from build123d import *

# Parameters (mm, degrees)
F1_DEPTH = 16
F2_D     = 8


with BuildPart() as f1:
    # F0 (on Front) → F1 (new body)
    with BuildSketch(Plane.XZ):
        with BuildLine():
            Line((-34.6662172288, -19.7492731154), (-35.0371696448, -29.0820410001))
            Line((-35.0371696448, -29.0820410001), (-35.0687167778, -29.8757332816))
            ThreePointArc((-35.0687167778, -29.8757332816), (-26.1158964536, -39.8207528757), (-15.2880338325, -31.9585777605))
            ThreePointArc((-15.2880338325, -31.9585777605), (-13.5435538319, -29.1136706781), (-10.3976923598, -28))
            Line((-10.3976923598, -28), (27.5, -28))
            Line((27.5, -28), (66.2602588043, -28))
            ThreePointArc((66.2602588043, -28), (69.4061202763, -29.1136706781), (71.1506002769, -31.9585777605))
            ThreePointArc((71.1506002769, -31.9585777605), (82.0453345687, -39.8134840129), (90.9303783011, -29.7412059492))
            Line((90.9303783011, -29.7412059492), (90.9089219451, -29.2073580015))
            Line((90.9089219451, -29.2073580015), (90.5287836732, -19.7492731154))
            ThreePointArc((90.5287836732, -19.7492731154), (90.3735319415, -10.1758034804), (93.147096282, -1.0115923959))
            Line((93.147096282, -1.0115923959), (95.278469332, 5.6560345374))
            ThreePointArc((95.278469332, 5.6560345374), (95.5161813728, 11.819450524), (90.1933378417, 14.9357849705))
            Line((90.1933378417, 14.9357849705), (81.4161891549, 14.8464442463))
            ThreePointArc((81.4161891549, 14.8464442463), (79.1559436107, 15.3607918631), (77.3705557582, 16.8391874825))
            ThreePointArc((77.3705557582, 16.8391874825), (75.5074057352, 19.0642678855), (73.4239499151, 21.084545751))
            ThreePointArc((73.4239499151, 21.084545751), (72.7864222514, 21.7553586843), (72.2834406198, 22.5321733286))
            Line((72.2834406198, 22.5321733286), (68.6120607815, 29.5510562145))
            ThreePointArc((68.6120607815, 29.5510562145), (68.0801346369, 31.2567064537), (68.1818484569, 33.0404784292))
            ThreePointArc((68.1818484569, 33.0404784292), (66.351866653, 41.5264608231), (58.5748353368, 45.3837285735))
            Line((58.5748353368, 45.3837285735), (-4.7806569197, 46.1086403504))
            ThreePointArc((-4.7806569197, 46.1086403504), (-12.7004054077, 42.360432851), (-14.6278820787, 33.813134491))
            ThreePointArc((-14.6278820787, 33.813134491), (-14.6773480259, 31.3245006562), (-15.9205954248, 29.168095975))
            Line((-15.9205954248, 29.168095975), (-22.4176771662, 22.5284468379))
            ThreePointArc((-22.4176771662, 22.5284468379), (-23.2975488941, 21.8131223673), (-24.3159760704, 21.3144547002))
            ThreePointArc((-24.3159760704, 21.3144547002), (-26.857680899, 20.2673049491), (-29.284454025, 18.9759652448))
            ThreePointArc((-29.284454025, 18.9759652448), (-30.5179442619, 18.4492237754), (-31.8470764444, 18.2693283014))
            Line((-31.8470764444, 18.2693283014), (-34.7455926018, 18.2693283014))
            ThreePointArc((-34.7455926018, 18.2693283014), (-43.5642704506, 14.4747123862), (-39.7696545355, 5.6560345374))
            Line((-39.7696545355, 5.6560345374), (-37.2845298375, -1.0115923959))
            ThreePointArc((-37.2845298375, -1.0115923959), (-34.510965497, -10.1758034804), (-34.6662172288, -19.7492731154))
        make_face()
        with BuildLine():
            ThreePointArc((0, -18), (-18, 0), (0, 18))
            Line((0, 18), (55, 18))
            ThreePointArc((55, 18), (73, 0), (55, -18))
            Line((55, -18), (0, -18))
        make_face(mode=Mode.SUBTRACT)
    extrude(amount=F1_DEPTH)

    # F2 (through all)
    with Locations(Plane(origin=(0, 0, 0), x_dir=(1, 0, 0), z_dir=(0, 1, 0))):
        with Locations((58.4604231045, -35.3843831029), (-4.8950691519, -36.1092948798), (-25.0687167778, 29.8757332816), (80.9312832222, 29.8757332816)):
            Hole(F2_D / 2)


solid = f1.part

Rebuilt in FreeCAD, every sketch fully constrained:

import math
import FreeCAD as App
import Part
import Sketcher

V = App.Vector

doc = App.newDocument("Part")
body = doc.addObject("PartDesign::Body", "Body")

# Sketch on XZ plane
sketch1 = body.newObject("Sketcher::SketchObject", "Sketch")
sketch1.AttachmentSupport = (doc.getObject("XZ_Plane"), [""])
sketch1.MapMode = "FlatFace"
sketch1.addGeometry([
    Part.LineSegment(V(-34.7, -19.7, 0), V(-35, -29.1, 0)),  # 0
    Part.LineSegment(V(-35, -29.1, 0), V(-35.1, -29.9, 0)),  # 1
    Part.ArcOfCircle(Part.Circle(V(-25.1, -29.9, 0), V(0, 0, 1), 10), math.radians(180), math.radians(348)),  # 2
    Part.ArcOfCircle(Part.Circle(V(-10.4, -33, 0), V(0, 0, 1), 5), math.radians(90), math.radians(168)),  # 3
    Part.LineSegment(V(-10.4, -28, 0), V(66.3, -28, 0)),  # 4
    Part.ArcOfCircle(Part.Circle(V(66.3, -33, 0), V(0, 0, 1), 5), math.radians(12), math.radians(90)),  # 5
    Part.ArcOfCircle(Part.Circle(V(80.9, -29.9, 0), V(0, 0, 1), 10), math.radians(-168), math.radians(1)),  # 6
    Part.LineSegment(V(90.9, -29.7, 0), V(90.9, -29.2, 0)),  # 7
    Part.LineSegment(V(90.9, -29.2, 0), V(90.5, -19.7, 0)),  # 8
    Part.ArcOfCircle(Part.Circle(V(121.1, -14.5, 0), V(0, 0, 1), 31), math.radians(154), math.radians(190)),  # 9
    Part.LineSegment(V(93.1, -1, 0), V(95.3, 5.7, 0)),  # 10
    Part.ArcOfCircle(Part.Circle(V(90.3, 8.9, 0), V(0, 0, 1), 6), math.radians(-33), math.radians(91)),  # 11
    Part.LineSegment(V(90.2, 14.9, 0), V(81.4, 14.8, 0)),  # 12
    Part.ArcOfCircle(Part.Circle(V(81.4, 19.8, 0), V(0, 0, 1), 5), math.radians(-143), math.radians(-89)),  # 13
    Part.ArcOfCircle(Part.Circle(V(55, 0, 0), V(0, 0, 1), 28), math.radians(36.97), math.radians(48.85)),  # 14
    Part.ArcOfCircle(Part.Circle(V(76.7, 24.8, 0), V(0, 0, 1), 5), math.radians(-152), math.radians(-131)),  # 15
    Part.LineSegment(V(72.3, 22.5, 0), V(68.6, 29.6, 0)),  # 16
    Part.ArcOfCircle(Part.Circle(V(73, 31.9, 0), V(0, 0, 1), 5), math.radians(166), math.radians(208)),  # 17
    Part.ArcOfCircle(Part.Circle(V(58.5, 35.4, 0), V(0, 0, 1), 10), math.radians(-14), math.radians(89)),  # 18
    Part.LineSegment(V(58.6, 45.4, 0), V(-4.8, 46.1, 0)),  # 19
    Part.ArcOfCircle(Part.Circle(V(-4.9, 36.1, 0), V(0, 0, 1), 10), math.radians(89), math.radians(193)),  # 20
    Part.ArcOfCircle(Part.Circle(V(-19.5, 32.7, 0), V(0, 0, 1), 5), math.radians(-44), math.radians(13)),  # 21
    Part.LineSegment(V(-15.9, 29.2, 0), V(-22.4, 22.5, 0)),  # 22
    Part.ArcOfCircle(Part.Circle(V(-26, 26, 0), V(0, 0, 1), 5), math.radians(-70), math.radians(-44)),  # 23
    Part.ArcOfCircle(Part.Circle(V(-14.9, -5.1, 0), V(0, 0, 1), 28), math.radians(109.58), math.radians(120.83)),  # 24
    Part.ArcOfCircle(Part.Circle(V(-31.8, 23.3, 0), V(0, 0, 1), 5), math.radians(-90), math.radians(-59)),  # 25
    Part.LineSegment(V(-31.8, 18.3, 0), V(-34.7, 18.3, 0)),  # 26
    Part.ArcOfCircle(Part.Circle(V(-37.3, 12, 0), V(0, 0, 1), 6.8), math.radians(68), math.radians(248)),  # 27
    Part.LineSegment(V(-39.8, 5.7, 0), V(-37.3, -1, 0)),  # 28
    Part.ArcOfCircle(Part.Circle(V(-65.2, -14.5, 0), V(0, 0, 1), 31), math.radians(-10), math.radians(26)),  # 29
    Part.LineSegment(V(55, -18, 0), V(0, -18, 0)),  # 30
    Part.ArcOfCircle(Part.Circle(V(0, 0, 0), V(0, 0, 1), 18), math.radians(90), math.radians(270)),  # 31
    Part.LineSegment(V(0, 18, 0), V(55, 18, 0)),  # 32
    Part.ArcOfCircle(Part.Circle(V(55, 0, 0), V(0, 0, 1), 18), math.radians(-90), math.radians(90)),  # 33
], False)
sketch1.addConstraint([
    Sketcher.Constraint("Coincident", 0, 2, 1, 1),
    Sketcher.Constraint("Coincident", 1, 2, 2, 1),
    Sketcher.Constraint("Tangent", 2, 2, 3, 2),
    Sketcher.Constraint("Tangent", 3, 1, 4, 1),
    Sketcher.Constraint("Tangent", 4, 2, 5, 2),
    Sketcher.Constraint("Tangent", 5, 1, 6, 1),
    Sketcher.Constraint("Coincident", 6, 2, 7, 1),
    Sketcher.Constraint("Coincident", 7, 2, 8, 1),
    Sketcher.Constraint("Coincident", 8, 2, 9, 2),
    Sketcher.Constraint("Coincident", 9, 1, 10, 1),
    Sketcher.Constraint("Coincident", 10, 2, 11, 1),
    Sketcher.Constraint("Tangent", 11, 2, 12, 1),
    Sketcher.Constraint("Tangent", 12, 2, 13, 2),
    Sketcher.Constraint("Tangent", 13, 1, 14, 1),
    Sketcher.Constraint("Tangent", 14, 2, 15, 2),
    Sketcher.Constraint("Tangent", 15, 1, 16, 1),
    Sketcher.Constraint("Tangent", 16, 2, 17, 2),
    Sketcher.Constraint("Tangent", 17, 1, 18, 1),
    Sketcher.Constraint("Tangent", 18, 2, 19, 1),
    Sketcher.Constraint("Tangent", 19, 2, 20, 1),
    Sketcher.Constraint("Tangent", 20, 2, 21, 2),
    Sketcher.Constraint("Tangent", 21, 1, 22, 1),
    Sketcher.Constraint("Tangent", 22, 2, 23, 2),
    Sketcher.Constraint("Tangent", 23, 1, 24, 1),
    Sketcher.Constraint("Tangent", 24, 2, 25, 2),
    Sketcher.Constraint("Tangent", 25, 1, 26, 1),
    Sketcher.Constraint("Coincident", 26, 2, 27, 1),
    Sketcher.Constraint("Coincident", 27, 2, 28, 1),
    Sketcher.Constraint("Coincident", 28, 2, 29, 2),
    Sketcher.Constraint("Coincident", 29, 1, 0, 1),
    Sketcher.Constraint("Tangent", 30, 2, 31, 2),
    Sketcher.Constraint("Tangent", 31, 1, 32, 1),
    Sketcher.Constraint("Tangent", 32, 2, 33, 2),
    Sketcher.Constraint("Tangent", 33, 1, 30, 1),
    Sketcher.Constraint("Horizontal", 4),
    Sketcher.Constraint("Horizontal", 26),
    Sketcher.Constraint("Horizontal", 30),
    Sketcher.Constraint("Horizontal", 32),
    Sketcher.Constraint("Coincident", 31, 3, -1, 1),
    Sketcher.Constraint("Coincident", 33, 3, 14, 3),
    Sketcher.Constraint("Equal", 3, 5),
    Sketcher.Constraint("Equal", 2, 6),
    Sketcher.Constraint("Equal", 5, 13),
    Sketcher.Constraint("Equal", 13, 15),
    Sketcher.Constraint("Equal", 15, 17),
    Sketcher.Constraint("Equal", 6, 18),
    Sketcher.Constraint("Equal", 18, 20),
    Sketcher.Constraint("Equal", 17, 21),
    Sketcher.Constraint("Equal", 21, 23),
    Sketcher.Constraint("Equal", 14, 24),
    Sketcher.Constraint("Equal", 23, 25),
    Sketcher.Constraint("Equal", 9, 29),
    Sketcher.Constraint("Parallel", 0, 1),
    Sketcher.Constraint("Parallel", 7, 8),
    Sketcher.Constraint("Horizontal", 2, 3, 6, 3),
    Sketcher.Constraint("Horizontal", 9, 3, 29, 3),
    Sketcher.Constraint("Horizontal", 6, 3, 1, 2),
    Sketcher.Constraint("Horizontal", 10, 2, 27, 2),
    Sketcher.Constraint("Horizontal", 9, 1, 28, 2),
    Sketcher.Constraint("Horizontal", 8, 2, 29, 1),
    Sketcher.Constraint("Radius", 2, 10.0),
    Sketcher.Constraint("Radius", 3, 5.0),
    Sketcher.Constraint("Radius", 9, 31.0),
    Sketcher.Constraint("Radius", 11, 6.0),
    Sketcher.Constraint("Radius", 14, 28.0),
    Sketcher.Constraint("Radius", 31, 18.0),
    Sketcher.Constraint("DistanceX", 30, 2, 30, 1, 55.0),
    Sketcher.Constraint("Distance", 10, 7.0),
    Sketcher.Constraint("DistanceY", 3, 3, -1, 1, 33.0),
    Sketcher.Constraint("DistanceX", 2, 3, 6, 3, 106.0),
    Sketcher.Constraint("Radius", 27, 6.788527),
    Sketcher.Constraint("DistanceX", 4, 1, 4, 2, 76.657951),
    Sketcher.Constraint("DistanceX", -1, 1, 5, 1, 71.1506),
    Sketcher.Constraint("DistanceX", 3, 3, 11, 3, 100.6521),
    Sketcher.Constraint("DistanceX", 23, 3, 20, 3, 21.096301),
    Sketcher.Constraint("DistanceX", 23, 3, 24, 3, 11.057602),
    Sketcher.Constraint("DistanceX", 29, 3, 25, 3, 33.365599),
    Sketcher.Constraint("DistanceX", 0, 2, 24, 3, 20.103401),
    Sketcher.Constraint("DistanceX", 6, 3, 8, 2, 9.5975),
    Sketcher.Constraint("DistanceX", 13, 3, 9, 1, 11.781798),
    Sketcher.Constraint("DistanceY", 11, 2, 13, 3, 4.9104),
    Sketcher.Constraint("DistanceY", 12, 2, 15, 3, 10.003199),
    Sketcher.Constraint("DistanceY", 12, 2, 14, 2, 6.238102),
    Sketcher.Constraint("DistanceX", 15, 1, 15, 3, 4.4305),
    Sketcher.Constraint("DistanceY", 21, 1, 20, 3, 6.941199),
    Sketcher.Constraint("DistanceX", 25, 3, 22, 2, 9.429399),
    Sketcher.Constraint("DistanceX", 23, 1, 22, 2, 1.898299),
    Sketcher.Constraint("DistanceX", 27, 2, 24, 2, 10.485201),
    Sketcher.Constraint("DistanceX", 1, 2, 29, 1, 0.4025),
    Sketcher.Constraint("Distance", 1, 0.794319),
    Sketcher.Constraint("Distance", 7, 0.534279),
    Sketcher.Constraint("Distance", 8, 9.465721),
    Sketcher.Constraint("Distance", 19, 63.359639),
    Sketcher.Constraint("DistanceX", 26, 2, 26, 1, 2.898516),
    Sketcher.Constraint("DistanceY", 9, 3, -1, 1, 14.465911),
    Sketcher.Constraint("DistanceX", -1, 1, 17, 3, 73.042561),
    Sketcher.Constraint("DistanceY", -1, 1, 27, 3, 11.962681),
])
pad1 = body.newObject("PartDesign::Pad", "Pad")
pad1.Profile = sketch1
pad1.Length = 16

# Sketch on XZ plane
sketch2 = body.newObject("Sketcher::SketchObject", "Sketch001")
sketch2.AttachmentSupport = (doc.getObject("XZ_Plane"), [""])
sketch2.MapMode = "FlatFace"
sketch2.addGeometry([
    Part.Circle(V(58.5, 35.4, 0), V(0, 0, 1), 4),
    Part.Circle(V(-4.9, 36.1, 0), V(0, 0, 1), 4),
    Part.Circle(V(-25.1, -29.9, 0), V(0, 0, 1), 4),
    Part.Circle(V(80.9, -29.9, 0), V(0, 0, 1), 4),
], False)
sketch2.addConstraint([
    Sketcher.Constraint("Equal", 0, 1),
    Sketcher.Constraint("Equal", 1, 2),
    Sketcher.Constraint("Equal", 2, 3),
    Sketcher.Constraint("Horizontal", 2, 3, 3, 3),
    Sketcher.Constraint("Diameter", 0, 8.0),
    Sketcher.Constraint("DistanceX", 2, 3, 3, 3, 106.0),
    Sketcher.Constraint("DistanceX", 1, 3, -1, 1, 4.895069),
    Sketcher.Constraint("DistanceY", 0, 3, 1, 3, 0.724912),
    Sketcher.Constraint("DistanceY", 2, 3, 1, 3, 65.985028),
    Sketcher.Constraint("DistanceX", 2, 3, 0, 3, 83.52914),
    Sketcher.Constraint("DistanceX", -1, 1, 0, 3, 58.460423),
    Sketcher.Constraint("DistanceY", -1, 1, 0, 3, 35.384383),
])
doc.recompute()
hole = body.newObject("PartDesign::Hole", "Hole")
hole.Profile = sketch2
hole.ThreadType = "None"
hole.Diameter = 8
hole.DepthType = "ThroughAll"
hole.Reversed = True

doc.recompute()
